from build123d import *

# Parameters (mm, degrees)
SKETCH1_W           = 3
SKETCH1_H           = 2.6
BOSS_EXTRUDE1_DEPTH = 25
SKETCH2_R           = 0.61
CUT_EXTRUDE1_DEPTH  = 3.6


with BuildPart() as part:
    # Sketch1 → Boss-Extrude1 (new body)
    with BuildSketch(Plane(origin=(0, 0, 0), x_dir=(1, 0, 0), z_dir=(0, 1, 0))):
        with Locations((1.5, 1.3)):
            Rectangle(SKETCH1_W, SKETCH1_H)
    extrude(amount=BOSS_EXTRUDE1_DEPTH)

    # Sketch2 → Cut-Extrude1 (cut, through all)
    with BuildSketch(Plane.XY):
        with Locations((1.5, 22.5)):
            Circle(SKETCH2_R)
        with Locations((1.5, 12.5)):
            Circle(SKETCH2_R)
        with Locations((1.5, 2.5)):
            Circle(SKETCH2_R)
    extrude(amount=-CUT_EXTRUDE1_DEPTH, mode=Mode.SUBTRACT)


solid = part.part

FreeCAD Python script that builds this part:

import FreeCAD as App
import Part
import Sketcher

doc = App.newDocument("Part")
body = doc.addObject("PartDesign::Body", "Body")

sketch1 = body.newObject("Sketcher::SketchObject", "Sketch")
sketch1.AttachmentSupport = (doc.getObject("XZ_Plane"), [""])
sketch1.MapMode = "FlatFace"
sketch1.addGeometry([
    Part.LineSegment(App.Vector(0, -2.6, 0), App.Vector(0, 0, 0)),
    Part.LineSegment(App.Vector(0, 0, 0), App.Vector(3, 0, 0)),
    Part.LineSegment(App.Vector(3, 0, 0), App.Vector(3, -2.6, 0)),
    Part.LineSegment(App.Vector(3, -2.6, 0), App.Vector(0, -2.6, 0)),
], False)
sketch1.addConstraint([
    Sketcher.Constraint("Coincident", 0, 2, 1, 1),
    Sketcher.Constraint("Coincident", 1, 2, 2, 1),
    Sketcher.Constraint("Coincident", 2, 2, 3, 1),
    Sketcher.Constraint("Coincident", 3, 2, 0, 1),
    Sketcher.Constraint("Vertical", 0),
    Sketcher.Constraint("Horizontal", 1),
    Sketcher.Constraint("Vertical", 2),
    Sketcher.Constraint("Horizontal", 3),
    Sketcher.Constraint("Coincident", 0, 2, -1, 1),
    Sketcher.Constraint("DistanceX", 1, 1, 1, 2, 3.0),
    Sketcher.Constraint("DistanceY", 0, 1, 0, 2, 2.6),
])
pad1 = body.newObject("PartDesign::Pad", "Pad")
pad1.Profile = sketch1
pad1.Length = 25
pad1.Reversed = True

sketch2 = body.newObject("Sketcher::SketchObject", "Sketch001")
sketch2.AttachmentSupport = (doc.getObject("XY_Plane"), [""])
sketch2.MapMode = "FlatFace"
sketch2.addGeometry([
    Part.Circle(App.Vector(1.5, 22.5, 0), App.Vector(0, 0, 1), 0.61),
    Part.Circle(App.Vector(1.5, 12.5, 0), App.Vector(0, 0, 1), 0.61),
    Part.Circle(App.Vector(1.5, 2.5, 0), App.Vector(0, 0, 1), 0.61),
], False)
sketch2.addConstraint([
    Sketcher.Constraint("Equal", 0, 1),
    Sketcher.Constraint("Equal", 1, 2),
    Sketcher.Constraint("Vertical", 0, 3, 1, 3),
    Sketcher.Constraint("Vertical", 1, 3, 2, 3),
    Sketcher.Constraint("Diameter", 0, 1.22),
    Sketcher.Constraint("DistanceY", 1, 3, 0, 3, 10.0),
    Sketcher.Constraint("DistanceY", 2, 3, 1, 3, 10.0),
    Sketcher.Constraint("DistanceX", -1, 1, 0, 3, 1.5),
    Sketcher.Constraint("DistanceY", -1, 1, 0, 3, 22.5),
])
pocket1 = body.newObject("PartDesign::Pocket", "Pocket")
pocket1.Profile = sketch2
pocket1.Type = "ThroughAll"

doc.recompute()
